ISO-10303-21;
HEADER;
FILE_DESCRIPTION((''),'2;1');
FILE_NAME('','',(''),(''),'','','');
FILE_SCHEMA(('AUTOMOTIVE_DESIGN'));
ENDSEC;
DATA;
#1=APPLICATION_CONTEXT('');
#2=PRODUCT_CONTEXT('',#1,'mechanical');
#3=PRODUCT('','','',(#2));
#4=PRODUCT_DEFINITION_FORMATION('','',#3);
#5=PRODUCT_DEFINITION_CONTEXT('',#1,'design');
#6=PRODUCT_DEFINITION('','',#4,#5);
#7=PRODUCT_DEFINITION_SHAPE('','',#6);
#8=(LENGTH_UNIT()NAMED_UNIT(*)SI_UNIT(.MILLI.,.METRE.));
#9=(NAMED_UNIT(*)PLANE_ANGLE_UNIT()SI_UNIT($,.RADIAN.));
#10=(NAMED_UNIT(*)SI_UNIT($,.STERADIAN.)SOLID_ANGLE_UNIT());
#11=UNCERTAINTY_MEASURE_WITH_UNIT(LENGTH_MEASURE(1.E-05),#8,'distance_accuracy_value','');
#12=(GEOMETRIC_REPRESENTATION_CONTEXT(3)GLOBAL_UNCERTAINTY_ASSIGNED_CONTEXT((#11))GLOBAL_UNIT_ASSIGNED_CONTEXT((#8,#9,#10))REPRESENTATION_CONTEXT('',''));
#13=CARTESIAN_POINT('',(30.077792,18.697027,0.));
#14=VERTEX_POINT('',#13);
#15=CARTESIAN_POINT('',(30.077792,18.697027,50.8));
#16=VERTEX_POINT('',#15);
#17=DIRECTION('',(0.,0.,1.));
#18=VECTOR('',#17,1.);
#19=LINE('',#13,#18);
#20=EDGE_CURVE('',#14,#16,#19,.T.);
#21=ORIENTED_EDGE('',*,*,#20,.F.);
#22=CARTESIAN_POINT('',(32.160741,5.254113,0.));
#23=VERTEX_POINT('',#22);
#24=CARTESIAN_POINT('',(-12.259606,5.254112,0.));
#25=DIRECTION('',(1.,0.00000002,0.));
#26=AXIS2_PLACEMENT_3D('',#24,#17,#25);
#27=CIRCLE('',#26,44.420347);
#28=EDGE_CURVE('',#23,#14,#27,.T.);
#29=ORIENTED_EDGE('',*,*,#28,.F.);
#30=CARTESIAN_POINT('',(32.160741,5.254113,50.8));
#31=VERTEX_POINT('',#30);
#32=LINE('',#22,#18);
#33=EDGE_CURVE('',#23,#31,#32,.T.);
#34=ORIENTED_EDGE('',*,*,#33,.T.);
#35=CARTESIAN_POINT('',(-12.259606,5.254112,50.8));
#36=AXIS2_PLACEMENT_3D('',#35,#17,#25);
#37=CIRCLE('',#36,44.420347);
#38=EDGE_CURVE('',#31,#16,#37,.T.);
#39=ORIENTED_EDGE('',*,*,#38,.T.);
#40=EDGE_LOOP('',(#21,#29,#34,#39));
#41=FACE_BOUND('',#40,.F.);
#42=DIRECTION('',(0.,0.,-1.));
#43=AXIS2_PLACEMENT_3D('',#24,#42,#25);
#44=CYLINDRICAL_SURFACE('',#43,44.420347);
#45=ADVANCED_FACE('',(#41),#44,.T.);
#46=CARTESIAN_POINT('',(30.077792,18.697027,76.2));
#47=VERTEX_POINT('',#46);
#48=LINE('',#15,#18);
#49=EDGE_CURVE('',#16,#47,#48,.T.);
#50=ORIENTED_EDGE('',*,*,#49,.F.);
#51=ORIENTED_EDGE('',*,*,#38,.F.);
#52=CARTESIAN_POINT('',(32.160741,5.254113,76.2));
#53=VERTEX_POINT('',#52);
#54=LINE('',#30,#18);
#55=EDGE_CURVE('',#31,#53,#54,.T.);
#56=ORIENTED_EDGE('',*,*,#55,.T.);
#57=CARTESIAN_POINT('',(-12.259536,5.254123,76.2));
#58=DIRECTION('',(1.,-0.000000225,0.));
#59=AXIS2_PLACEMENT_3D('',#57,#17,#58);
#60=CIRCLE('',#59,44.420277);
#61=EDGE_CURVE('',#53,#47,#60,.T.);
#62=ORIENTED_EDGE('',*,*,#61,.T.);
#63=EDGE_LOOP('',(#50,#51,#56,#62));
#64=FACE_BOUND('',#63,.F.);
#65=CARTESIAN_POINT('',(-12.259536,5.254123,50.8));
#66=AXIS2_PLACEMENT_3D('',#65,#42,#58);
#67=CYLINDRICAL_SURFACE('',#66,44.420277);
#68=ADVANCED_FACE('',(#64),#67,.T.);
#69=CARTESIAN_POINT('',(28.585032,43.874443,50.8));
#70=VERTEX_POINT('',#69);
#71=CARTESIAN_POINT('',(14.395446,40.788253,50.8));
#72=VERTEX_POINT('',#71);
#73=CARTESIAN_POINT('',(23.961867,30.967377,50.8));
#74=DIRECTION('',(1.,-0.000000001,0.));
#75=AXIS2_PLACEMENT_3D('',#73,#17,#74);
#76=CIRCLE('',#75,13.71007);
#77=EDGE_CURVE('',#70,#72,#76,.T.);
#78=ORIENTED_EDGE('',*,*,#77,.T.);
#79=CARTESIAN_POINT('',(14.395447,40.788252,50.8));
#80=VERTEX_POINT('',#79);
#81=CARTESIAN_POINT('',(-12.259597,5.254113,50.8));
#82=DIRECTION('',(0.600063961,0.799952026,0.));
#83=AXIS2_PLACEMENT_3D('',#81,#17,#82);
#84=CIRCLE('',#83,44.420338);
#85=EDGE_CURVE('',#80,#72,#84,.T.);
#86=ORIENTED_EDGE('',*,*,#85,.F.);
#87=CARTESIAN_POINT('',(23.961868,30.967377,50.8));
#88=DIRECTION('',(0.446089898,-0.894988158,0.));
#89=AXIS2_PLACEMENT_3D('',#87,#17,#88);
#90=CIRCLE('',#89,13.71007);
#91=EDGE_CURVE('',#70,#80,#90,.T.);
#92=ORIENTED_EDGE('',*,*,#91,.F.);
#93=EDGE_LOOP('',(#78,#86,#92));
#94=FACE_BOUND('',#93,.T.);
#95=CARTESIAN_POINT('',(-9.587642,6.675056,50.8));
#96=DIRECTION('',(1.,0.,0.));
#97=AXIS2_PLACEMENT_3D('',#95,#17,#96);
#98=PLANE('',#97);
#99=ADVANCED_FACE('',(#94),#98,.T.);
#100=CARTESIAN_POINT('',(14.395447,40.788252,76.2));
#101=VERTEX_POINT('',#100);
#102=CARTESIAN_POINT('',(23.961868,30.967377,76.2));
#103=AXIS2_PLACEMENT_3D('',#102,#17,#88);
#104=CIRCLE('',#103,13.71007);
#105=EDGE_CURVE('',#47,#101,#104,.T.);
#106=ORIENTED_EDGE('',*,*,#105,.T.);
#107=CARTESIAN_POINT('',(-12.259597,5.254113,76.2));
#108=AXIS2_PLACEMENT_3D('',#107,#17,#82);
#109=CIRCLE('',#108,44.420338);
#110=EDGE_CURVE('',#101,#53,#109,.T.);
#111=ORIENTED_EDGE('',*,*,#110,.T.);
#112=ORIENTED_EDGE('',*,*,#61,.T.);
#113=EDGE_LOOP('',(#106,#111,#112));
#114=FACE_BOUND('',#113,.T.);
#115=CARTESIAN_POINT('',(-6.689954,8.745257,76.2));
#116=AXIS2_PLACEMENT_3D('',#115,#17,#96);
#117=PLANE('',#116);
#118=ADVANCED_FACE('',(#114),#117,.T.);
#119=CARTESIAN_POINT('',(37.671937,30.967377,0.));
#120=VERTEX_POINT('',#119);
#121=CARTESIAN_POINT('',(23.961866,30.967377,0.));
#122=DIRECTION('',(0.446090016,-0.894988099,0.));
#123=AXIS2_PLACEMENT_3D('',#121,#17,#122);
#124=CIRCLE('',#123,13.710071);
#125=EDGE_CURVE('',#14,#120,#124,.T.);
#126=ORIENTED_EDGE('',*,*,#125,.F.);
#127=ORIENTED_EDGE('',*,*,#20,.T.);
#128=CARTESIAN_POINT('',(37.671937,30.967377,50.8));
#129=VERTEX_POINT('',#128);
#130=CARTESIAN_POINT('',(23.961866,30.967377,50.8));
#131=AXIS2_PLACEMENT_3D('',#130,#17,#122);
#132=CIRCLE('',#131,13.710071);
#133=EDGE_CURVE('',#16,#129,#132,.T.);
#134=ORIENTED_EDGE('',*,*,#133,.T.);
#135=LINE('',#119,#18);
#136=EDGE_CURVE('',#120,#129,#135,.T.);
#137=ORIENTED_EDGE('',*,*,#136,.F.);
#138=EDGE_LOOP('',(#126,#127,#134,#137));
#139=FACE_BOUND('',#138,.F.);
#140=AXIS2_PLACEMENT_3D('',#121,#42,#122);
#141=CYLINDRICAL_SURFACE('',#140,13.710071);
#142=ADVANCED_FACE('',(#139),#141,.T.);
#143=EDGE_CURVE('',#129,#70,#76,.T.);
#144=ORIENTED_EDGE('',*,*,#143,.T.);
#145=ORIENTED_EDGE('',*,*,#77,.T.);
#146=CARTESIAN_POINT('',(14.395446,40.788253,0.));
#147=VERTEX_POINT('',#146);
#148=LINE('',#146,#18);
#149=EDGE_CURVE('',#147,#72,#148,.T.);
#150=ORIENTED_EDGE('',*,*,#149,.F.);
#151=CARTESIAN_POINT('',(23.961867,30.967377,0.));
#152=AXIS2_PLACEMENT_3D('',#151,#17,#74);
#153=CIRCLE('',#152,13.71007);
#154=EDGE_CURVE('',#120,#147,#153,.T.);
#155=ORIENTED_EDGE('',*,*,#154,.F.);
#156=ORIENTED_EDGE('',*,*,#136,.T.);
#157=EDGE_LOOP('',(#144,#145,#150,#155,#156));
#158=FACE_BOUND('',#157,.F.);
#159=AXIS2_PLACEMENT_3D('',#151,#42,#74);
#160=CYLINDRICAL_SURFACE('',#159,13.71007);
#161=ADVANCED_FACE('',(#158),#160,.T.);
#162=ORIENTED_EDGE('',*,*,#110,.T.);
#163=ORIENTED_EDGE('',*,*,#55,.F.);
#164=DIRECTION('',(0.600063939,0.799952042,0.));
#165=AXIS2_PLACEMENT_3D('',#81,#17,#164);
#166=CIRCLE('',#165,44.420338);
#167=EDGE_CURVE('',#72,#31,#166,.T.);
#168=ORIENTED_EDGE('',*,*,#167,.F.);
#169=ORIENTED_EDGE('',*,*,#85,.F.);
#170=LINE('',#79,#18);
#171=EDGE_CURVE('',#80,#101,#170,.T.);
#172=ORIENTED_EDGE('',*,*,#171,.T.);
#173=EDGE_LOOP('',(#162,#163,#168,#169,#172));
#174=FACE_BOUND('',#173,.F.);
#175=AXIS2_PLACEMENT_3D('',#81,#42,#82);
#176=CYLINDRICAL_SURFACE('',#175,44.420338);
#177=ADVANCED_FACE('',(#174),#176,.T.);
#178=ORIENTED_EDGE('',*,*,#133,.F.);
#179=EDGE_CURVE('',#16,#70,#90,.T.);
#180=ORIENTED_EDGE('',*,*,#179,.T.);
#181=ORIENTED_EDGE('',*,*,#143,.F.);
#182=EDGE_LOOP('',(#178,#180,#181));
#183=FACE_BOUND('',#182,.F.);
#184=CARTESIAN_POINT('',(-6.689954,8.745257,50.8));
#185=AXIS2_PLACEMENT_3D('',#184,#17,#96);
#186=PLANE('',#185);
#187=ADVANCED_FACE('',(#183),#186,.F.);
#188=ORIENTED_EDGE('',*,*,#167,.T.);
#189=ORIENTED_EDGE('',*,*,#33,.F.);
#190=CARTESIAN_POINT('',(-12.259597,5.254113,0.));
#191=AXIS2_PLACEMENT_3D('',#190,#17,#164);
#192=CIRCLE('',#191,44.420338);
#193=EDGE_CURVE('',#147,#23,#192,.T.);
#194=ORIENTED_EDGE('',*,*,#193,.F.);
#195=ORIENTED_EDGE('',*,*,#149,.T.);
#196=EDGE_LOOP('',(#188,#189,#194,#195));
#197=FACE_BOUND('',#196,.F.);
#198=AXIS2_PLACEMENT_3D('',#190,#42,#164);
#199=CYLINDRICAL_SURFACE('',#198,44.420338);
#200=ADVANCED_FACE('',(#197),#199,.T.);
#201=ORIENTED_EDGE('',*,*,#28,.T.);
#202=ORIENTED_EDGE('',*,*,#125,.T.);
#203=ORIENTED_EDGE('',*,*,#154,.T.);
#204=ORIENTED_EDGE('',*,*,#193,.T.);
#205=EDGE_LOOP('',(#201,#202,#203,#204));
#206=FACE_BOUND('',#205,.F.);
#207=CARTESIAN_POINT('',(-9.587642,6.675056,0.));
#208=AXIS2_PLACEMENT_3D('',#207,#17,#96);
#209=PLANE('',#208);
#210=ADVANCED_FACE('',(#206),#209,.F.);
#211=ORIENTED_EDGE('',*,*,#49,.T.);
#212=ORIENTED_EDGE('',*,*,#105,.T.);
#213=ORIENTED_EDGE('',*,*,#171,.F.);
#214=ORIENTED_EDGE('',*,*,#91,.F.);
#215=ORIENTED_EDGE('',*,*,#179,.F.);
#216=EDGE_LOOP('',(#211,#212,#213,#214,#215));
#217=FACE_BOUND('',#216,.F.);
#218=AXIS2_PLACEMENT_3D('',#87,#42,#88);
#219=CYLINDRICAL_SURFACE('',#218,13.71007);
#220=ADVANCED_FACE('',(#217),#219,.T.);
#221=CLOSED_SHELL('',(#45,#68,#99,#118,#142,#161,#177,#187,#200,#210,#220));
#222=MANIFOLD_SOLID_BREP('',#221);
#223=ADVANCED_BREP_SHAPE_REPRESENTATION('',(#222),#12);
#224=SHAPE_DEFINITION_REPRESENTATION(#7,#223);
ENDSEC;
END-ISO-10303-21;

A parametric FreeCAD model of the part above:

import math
import FreeCAD as App
import Part
import Sketcher
Q = App.Units.Quantity

doc = App.newDocument("Part")
body = doc.addObject("PartDesign::Body", "Body")

sketch1 = body.newObject("Sketcher::SketchObject", "Sketch")
sketch1.AttachmentSupport = (doc.getObject("XY_Plane"), [""])
sketch1.MapMode = "FlatFace"
sketch1.addGeometry([
    Part.ArcOfCircle(Part.Circle(App.Vector(-12.259597, 5.254113, 0), App.Vector(0, 0, 1), 44.420338), math.radians(53.125523), math.radians(360)),
    Part.ArcOfCircle(Part.Circle(App.Vector(-12.259606, 5.254112, 0), App.Vector(0, 0, 1), 44.420347), math.radians(0.000001), math.radians(17.615616)),
    Part.ArcOfCircle(Part.Circle(App.Vector(23.961866, 30.967377, 0), App.Vector(0, 0, 1), 13.710071), math.radians(-63.506901), math.radians(0)),
    Part.ArcOfCircle(Part.Circle(App.Vector(23.961867, 30.967377, 0), App.Vector(0, 0, 1), 13.71007), math.radians(0), math.radians(134.248046)),
], False)
sketch1.addConstraint([
    Sketcher.Constraint("Tangent", 0, 2, 1, 1),
    Sketcher.Constraint("Coincident", 1, 2, 2, 1),
    Sketcher.Constraint("Tangent", 2, 2, 3, 1),
    Sketcher.Constraint("Coincident", 3, 2, 0, 1),
    Sketcher.Constraint("Equal", 2, 3),
    Sketcher.Constraint("Horizontal", 1, 3, 0, 2),
    Sketcher.Constraint("Horizontal", 3, 3, 2, 2),
    Sketcher.Constraint("Radius", 2, Q("13.710071 mm")),
    Sketcher.Constraint("Radius", 0, Q("44.420338 mm")),
    Sketcher.Constraint("Radius", 1, Q("44.420347 mm")),
    Sketcher.Constraint("DistanceX", 1, 3, 1, 2, Q("42.337398 mm")),
    Sketcher.Constraint("DistanceX", -1, 1, 0, 2, Q("32.160741 mm")),
    Sketcher.Constraint("DistanceY", 1, 2, 3, 3, Q("12.27035 mm")),
    Sketcher.Constraint("DistanceY", -1, 1, 0, 3, Q("5.254113 mm")),
])
pad1 = body.newObject("PartDesign::Pad", "Pad")
pad1.Profile = sketch1
pad1.Length = Q("2 in")

sketch2 = body.newObject("Sketcher::SketchObject", "Sketch001")
sketch2.AttachmentSupport = (doc.getObject("XY_Plane"), [""])
sketch2.MapMode = "FlatFace"
sketch2.AttachmentOffset = App.Placement(App.Vector(0, 0, 2 * 25.4), App.Rotation())
sketch2.addGeometry([
    Part.ArcOfCircle(Part.Circle(App.Vector(-12.259597, 5.254113, 0), App.Vector(0, 0, 1), 44.420338), math.radians(53.125521), math.radians(360)),
    Part.ArcOfCircle(Part.Circle(App.Vector(-12.259536, 5.254123, 0), App.Vector(0, 0, 1), 44.420277), math.radians(-0.000013), math.radians(17.61563)),
    Part.ArcOfCircle(Part.Circle(App.Vector(23.961868, 30.967377, 0), App.Vector(0, 0, 1), 13.71007), math.radians(-63.506909), math.radians(134.24805)),
], False)
sketch2.addConstraint([
    Sketcher.Constraint("Tangent", 0, 2, 1, 1),
    Sketcher.Constraint("Coincident", 1, 2, 2, 1),
    Sketcher.Constraint("Coincident", 2, 2, 0, 1),
    Sketcher.Constraint("Radius", 2, Q("13.71007 mm")),
    Sketcher.Constraint("Radius", 0, Q("44.420338 mm")),
    Sketcher.Constraint("Radius", 1, Q("44.420277 mm")),
    Sketcher.Constraint("DistanceX", -1, 1, 2, 3, Q("23.961868 mm")),
    Sketcher.Constraint("DistanceX", -1, 1, 0, 2, Q("32.160741 mm")),
    Sketcher.Constraint("DistanceX", -1, 1, 1, 2, Q("30.077792 mm")),
    Sketcher.Constraint("DistanceY", 0, 2, 2, 2, Q("35.534139 mm")),
    Sketcher.Constraint("DistanceY", -1, 1, 0, 3, Q("5.254113 mm")),
])
pad2 = body.newObject("PartDesign::Pad", "Pad001")
pad2.Profile = sketch2
pad2.Length = Q("1 in")

doc.recompute()
